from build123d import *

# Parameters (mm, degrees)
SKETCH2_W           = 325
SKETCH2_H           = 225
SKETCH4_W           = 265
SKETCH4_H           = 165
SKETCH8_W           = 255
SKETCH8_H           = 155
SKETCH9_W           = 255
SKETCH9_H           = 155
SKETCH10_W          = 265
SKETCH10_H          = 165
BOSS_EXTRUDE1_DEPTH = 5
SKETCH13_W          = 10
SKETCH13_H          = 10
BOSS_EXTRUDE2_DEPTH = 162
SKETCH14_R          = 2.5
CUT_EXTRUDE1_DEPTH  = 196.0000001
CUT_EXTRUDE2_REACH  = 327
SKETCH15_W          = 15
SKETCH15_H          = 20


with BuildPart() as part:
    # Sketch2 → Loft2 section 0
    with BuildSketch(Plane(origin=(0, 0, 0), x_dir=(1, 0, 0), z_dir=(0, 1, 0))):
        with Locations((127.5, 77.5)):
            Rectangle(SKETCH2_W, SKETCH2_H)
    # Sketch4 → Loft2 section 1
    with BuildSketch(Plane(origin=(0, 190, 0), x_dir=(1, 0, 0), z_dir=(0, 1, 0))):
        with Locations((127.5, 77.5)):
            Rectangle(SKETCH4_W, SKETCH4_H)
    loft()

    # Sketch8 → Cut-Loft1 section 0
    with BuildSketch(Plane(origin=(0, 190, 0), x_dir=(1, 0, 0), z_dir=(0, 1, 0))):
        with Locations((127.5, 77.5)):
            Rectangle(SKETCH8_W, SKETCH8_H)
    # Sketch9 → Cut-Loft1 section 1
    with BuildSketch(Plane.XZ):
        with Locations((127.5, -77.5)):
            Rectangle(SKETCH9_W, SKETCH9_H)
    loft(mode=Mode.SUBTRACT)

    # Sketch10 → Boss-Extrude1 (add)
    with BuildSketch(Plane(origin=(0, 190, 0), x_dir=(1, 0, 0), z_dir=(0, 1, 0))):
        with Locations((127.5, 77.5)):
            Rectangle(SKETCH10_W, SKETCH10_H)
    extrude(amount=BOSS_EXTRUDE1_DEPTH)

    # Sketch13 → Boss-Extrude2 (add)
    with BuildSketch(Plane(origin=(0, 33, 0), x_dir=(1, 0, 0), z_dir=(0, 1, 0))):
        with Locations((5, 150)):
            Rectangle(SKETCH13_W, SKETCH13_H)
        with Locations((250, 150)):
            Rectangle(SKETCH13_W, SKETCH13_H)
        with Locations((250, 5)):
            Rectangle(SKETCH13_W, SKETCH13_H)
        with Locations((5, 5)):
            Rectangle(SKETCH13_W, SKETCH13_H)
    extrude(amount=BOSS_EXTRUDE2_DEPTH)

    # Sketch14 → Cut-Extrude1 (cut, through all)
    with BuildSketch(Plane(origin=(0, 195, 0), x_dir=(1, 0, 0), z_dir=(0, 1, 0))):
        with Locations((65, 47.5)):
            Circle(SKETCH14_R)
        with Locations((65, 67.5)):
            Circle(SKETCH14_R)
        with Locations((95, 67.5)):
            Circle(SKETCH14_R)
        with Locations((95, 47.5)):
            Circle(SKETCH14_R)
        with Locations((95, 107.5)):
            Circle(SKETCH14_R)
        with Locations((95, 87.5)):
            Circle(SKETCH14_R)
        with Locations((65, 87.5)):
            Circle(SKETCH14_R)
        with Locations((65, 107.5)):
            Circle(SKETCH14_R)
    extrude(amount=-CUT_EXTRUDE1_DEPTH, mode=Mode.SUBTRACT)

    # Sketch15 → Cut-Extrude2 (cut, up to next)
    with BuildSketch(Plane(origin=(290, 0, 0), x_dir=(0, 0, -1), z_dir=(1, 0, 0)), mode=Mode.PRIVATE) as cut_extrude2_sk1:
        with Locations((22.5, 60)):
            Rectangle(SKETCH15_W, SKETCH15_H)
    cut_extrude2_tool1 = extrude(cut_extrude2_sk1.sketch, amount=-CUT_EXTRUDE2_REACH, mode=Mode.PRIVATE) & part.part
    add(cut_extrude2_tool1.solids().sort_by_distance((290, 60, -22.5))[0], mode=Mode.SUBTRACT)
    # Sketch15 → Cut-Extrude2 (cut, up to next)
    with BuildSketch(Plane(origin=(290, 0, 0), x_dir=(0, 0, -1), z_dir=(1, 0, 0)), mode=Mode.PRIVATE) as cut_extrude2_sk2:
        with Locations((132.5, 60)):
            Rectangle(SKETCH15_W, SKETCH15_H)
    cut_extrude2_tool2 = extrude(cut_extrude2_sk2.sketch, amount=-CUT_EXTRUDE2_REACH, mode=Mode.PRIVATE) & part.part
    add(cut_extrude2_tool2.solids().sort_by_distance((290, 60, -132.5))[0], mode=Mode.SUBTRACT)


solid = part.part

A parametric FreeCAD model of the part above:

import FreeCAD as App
import Part
import Sketcher

doc = App.newDocument("Part")
params = doc.addObject("Spreadsheet::Sheet", "Params")
for row, (alias, value) in enumerate([
    ("sketch1_width", "325 mm"),
    ("sketch1_height", "225 mm"),
    ("sketch2_width", "265 mm"),
    ("sketch2_height", "165 mm"),
    ("sketch3_width", "255 mm"),
    ("sketch3_height", "155 mm"),
    ("sketch4_width", "255 mm"),
    ("sketch4_height", "155 mm"),
    ("sketch5_width", "265 mm"),
    ("sketch5_height", "165 mm"),
    ("pad1_length", "5 mm"),
    ("sketch6_width", "10 mm"),
    ("pad2_length", "162 mm"),
    ("sketch7_diameter", "5 mm"),
    ("sketch8_width", "20 mm"),
    ("sketch8_height", "15 mm"),
    ("pocket2_length", "35 mm"),
    ("sketch9_width", "20 mm"),
    ("sketch9_height", "15 mm"),
    ("pocket3_length", "35 mm"),
], start=1):
    params.set(f"A{row}", alias)
    params.set(f"B{row}", "=" + value)
    params.setAlias(f"B{row}", alias)

body = doc.addObject("PartDesign::Body", "Body")

# Sketch on XZ plane
sketch1 = body.newObject("Sketcher::SketchObject", "Sketch")
sketch1.AttachmentSupport = (doc.getObject("XZ_Plane"), [""])
sketch1.MapMode = "FlatFace"
sketch1.addGeometry([
    Part.LineSegment(App.Vector(-35, -190, 0), App.Vector(-35, 35, 0)),
    Part.LineSegment(App.Vector(-35, 35, 0), App.Vector(290, 35, 0)),
    Part.LineSegment(App.Vector(290, 35, 0), App.Vector(290, -190, 0)),
    Part.LineSegment(App.Vector(290, -190, 0), App.Vector(-35, -190, 0)),
], False)
sketch1.addConstraint([
    Sketcher.Constraint("Coincident", 0, 2, 1, 1),
    Sketcher.Constraint("Coincident", 1, 2, 2, 1),
    Sketcher.Constraint("Coincident", 2, 2, 3, 1),
    Sketcher.Constraint("Coincident", 3, 2, 0, 1),
    Sketcher.Constraint("Vertical", 0),
    Sketcher.Constraint("Horizontal", 1),
    Sketcher.Constraint("Vertical", 2),
    Sketcher.Constraint("Horizontal", 3),
    Sketcher.Constraint("DistanceX", 1, 1, 1, 2, 325.0),
    Sketcher.Constraint("DistanceY", 0, 1, 0, 2, 225.0),
    Sketcher.Constraint("DistanceX", 0, 2, -1, 1, 35.0),
    Sketcher.Constraint("DistanceY", -1, 1, 0, 2, 35.0),
])
sketch1.setExpression("Constraints[8]", "Params.sketch1_width")
sketch1.setExpression("Constraints[9]", "Params.sketch1_height")

# Sketch on XZ plane
sketch2 = body.newObject("Sketcher::SketchObject", "Sketch001")
sketch2.AttachmentSupport = (doc.getObject("XZ_Plane"), [""])
sketch2.MapMode = "FlatFace"
sketch2.AttachmentOffset = App.Placement(App.Vector(0, 0, -190), App.Rotation())
sketch2.addGeometry([
    Part.LineSegment(App.Vector(-5, -160, 0), App.Vector(-5, 5, 0)),
    Part.LineSegment(App.Vector(-5, 5, 0), App.Vector(260, 5, 0)),
    Part.LineSegment(App.Vector(260, 5, 0), App.Vector(260, -160, 0)),
    Part.LineSegment(App.Vector(260, -160, 0), App.Vector(-5, -160, 0)),
], False)
sketch2.addConstraint([
    Sketcher.Constraint("Coincident", 0, 2, 1, 1),
    Sketcher.Constraint("Coincident", 1, 2, 2, 1),
    Sketcher.Constraint("Coincident", 2, 2, 3, 1),
    Sketcher.Constraint("Coincident", 3, 2, 0, 1),
    Sketcher.Constraint("Vertical", 0),
    Sketcher.Constraint("Horizontal", 1),
    Sketcher.Constraint("Vertical", 2),
    Sketcher.Constraint("Horizontal", 3),
    Sketcher.Constraint("DistanceX", 1, 1, 1, 2, 265.0),
    Sketcher.Constraint("DistanceY", 0, 1, 0, 2, 165.0),
    Sketcher.Constraint("DistanceX", 0, 2, -1, 1, 5.0),
    Sketcher.Constraint("DistanceY", -1, 1, 0, 2, 5.0),
])
sketch2.setExpression("Constraints[8]", "Params.sketch2_width")
sketch2.setExpression("Constraints[9]", "Params.sketch2_height")

additiveloft = body.newObject("PartDesign::AdditiveLoft", "AdditiveLoft")
additiveloft.Profile = sketch1
additiveloft.Sections = [sketch2]

# Sketch on XZ plane
sketch3 = body.newObject("Sketcher::SketchObject", "Sketch002")
sketch3.AttachmentSupport = (doc.getObject("XZ_Plane"), [""])
sketch3.MapMode = "FlatFace"
sketch3.AttachmentOffset = App.Placement(App.Vector(0, 0, -190), App.Rotation())
sketch3.addGeometry([
    Part.LineSegment(App.Vector(0, -155, 0), App.Vector(0, 0, 0)),
    Part.LineSegment(App.Vector(0, 0, 0), App.Vector(255, 0, 0)),
    Part.LineSegment(App.Vector(255, 0, 0), App.Vector(255, -155, 0)),
    Part.LineSegment(App.Vector(255, -155, 0), App.Vector(0, -155, 0)),
], False)
sketch3.addConstraint([
    Sketcher.Constraint("Coincident", 0, 2, 1, 1),
    Sketcher.Constraint("Coincident", 1, 2, 2, 1),
    Sketcher.Constraint("Coincident", 2, 2, 3, 1),
    Sketcher.Constraint("Coincident", 3, 2, 0, 1),
    Sketcher.Constraint("Vertical", 0),
    Sketcher.Constraint("Horizontal", 1),
    Sketcher.Constraint("Vertical", 2),
    Sketcher.Constraint("Horizontal", 3),
    Sketcher.Constraint("Coincident", 0, 2, -1, 1),
    Sketcher.Constraint("DistanceX", 1, 1, 1, 2, 255.0),
    Sketcher.Constraint("DistanceY", 0, 1, 0, 2, 155.0),
])
sketch3.setExpression("Constraints[9]", "Params.sketch3_width")
sketch3.setExpression("Constraints[10]", "Params.sketch3_height")

# Sketch on XZ plane
sketch4 = body.newObject("Sketcher::SketchObject", "Sketch003")
sketch4.AttachmentSupport = (doc.getObject("XZ_Plane"), [""])
sketch4.MapMode = "FlatFace"
sketch4.addGeometry([
    Part.LineSegment(App.Vector(0, 0, 0), App.Vector(0, -155, 0)),
    Part.LineSegment(App.Vector(0, -155, 0), App.Vector(255, -155, 0)),
    Part.LineSegment(App.Vector(255, -155, 0), App.Vector(255, 0, 0)),
    Part.LineSegment(App.Vector(255, 0, 0), App.Vector(0, 0, 0)),
], False)
sketch4.addConstraint([
    Sketcher.Constraint("Coincident", 0, 2, 1, 1),
    Sketcher.Constraint("Coincident", 1, 2, 2, 1),
    Sketcher.Constraint("Coincident", 2, 2, 3, 1),
    Sketcher.Constraint("Coincident", 3, 2, 0, 1),
    Sketcher.Constraint("Vertical", 0),
    Sketcher.Constraint("Horizontal", 1),
    Sketcher.Constraint("Vertical", 2),
    Sketcher.Constraint("Horizontal", 3),
    Sketcher.Constraint("Coincident", 3, 2, -1, 1),
    Sketcher.Constraint("DistanceX", 1, 1, 1, 2, 255.0),
    Sketcher.Constraint("DistanceY", 0, 2, 0, 1, 155.0),
])
sketch4.setExpression("Constraints[9]", "Params.sketch4_width")
sketch4.setExpression("Constraints[10]", "Params.sketch4_height")

subtractiveloft = body.newObject("PartDesign::SubtractiveLoft", "SubtractiveLoft")
subtractiveloft.Profile = sketch3
subtractiveloft.Sections = [sketch4]

# Sketch on XZ plane
sketch5 = body.newObject("Sketcher::SketchObject", "Sketch004")
sketch5.AttachmentSupport = (doc.getObject("XZ_Plane"), [""])
sketch5.MapMode = "FlatFace"
sketch5.AttachmentOffset = App.Placement(App.Vector(0, 0, -190), App.Rotation())
sketch5.addGeometry([
    Part.LineSegment(App.Vector(-5, -160, 0), App.Vector(-5, 5, 0)),
    Part.LineSegment(App.Vector(-5, 5, 0), App.Vector(260, 5, 0)),
    Part.LineSegment(App.Vector(260, 5, 0), App.Vector(260, -160, 0)),
    Part.LineSegment(App.Vector(260, -160, 0), App.Vector(-5, -160, 0)),
], False)
sketch5.addConstraint([
    Sketcher.Constraint("Coincident", 0, 2, 1, 1),
    Sketcher.Constraint("Coincident", 1, 2, 2, 1),
    Sketcher.Constraint("Coincident", 2, 2, 3, 1),
    Sketcher.Constraint("Coincident", 3, 2, 0, 1),
    Sketcher.Constraint("Vertical", 0),
    Sketcher.Constraint("Horizontal", 1),
    Sketcher.Constraint("Vertical", 2),
    Sketcher.Constraint("Horizontal", 3),
    Sketcher.Constraint("DistanceX", 1, 1, 1, 2, 265.0),
    Sketcher.Constraint("DistanceY", 0, 1, 0, 2, 165.0),
    Sketcher.Constraint("DistanceX", 0, 2, -1, 1, 5.0),
    Sketcher.Constraint("DistanceY", -1, 1, 0, 2, 5.0),
])
sketch5.setExpression("Constraints[8]", "Params.sketch5_width")
sketch5.setExpression("Constraints[9]", "Params.sketch5_height")
pad1 = body.newObject("PartDesign::Pad", "Pad")
pad1.Profile = sketch5
pad1.setExpression("Length", "Params.pad1_length")
pad1.Reversed = True

# Sketch on XZ plane
sketch6 = body.newObject("Sketcher::SketchObject", "Sketch005")
sketch6.AttachmentSupport = (doc.getObject("XZ_Plane"), [""])
sketch6.MapMode = "FlatFace"
sketch6.AttachmentOffset = App.Placement(App.Vector(0, 0, -33), App.Rotation())
sketch6.addGeometry([
    Part.LineSegment(App.Vector(0, -155, 0), App.Vector(0, -145, 0)),  # 0
    Part.LineSegment(App.Vector(0, -145, 0), App.Vector(10, -145, 0)),  # 1
    Part.LineSegment(App.Vector(10, -145, 0), App.Vector(10, -155, 0)),  # 2
    Part.LineSegment(App.Vector(10, -155, 0), App.Vector(0, -155, 0)),  # 3
    Part.LineSegment(App.Vector(245, -155, 0), App.Vector(245, -145, 0)),  # 4
    Part.LineSegment(App.Vector(245, -145, 0), App.Vector(255, -145, 0)),  # 5
    Part.LineSegment(App.Vector(255, -145, 0), App.Vector(255, -155, 0)),  # 6
    Part.LineSegment(App.Vector(255, -155, 0), App.Vector(245, -155, 0)),  # 7
    Part.LineSegment(App.Vector(245, -10, 0), App.Vector(245, 0, 0)),  # 8
    Part.LineSegment(App.Vector(245, 0, 0), App.Vector(255, 0, 0)),  # 9
    Part.LineSegment(App.Vector(255, 0, 0), App.Vector(255, -10, 0)),  # 10
    Part.LineSegment(App.Vector(255, -10, 0), App.Vector(245, -10, 0)),  # 11
    Part.LineSegment(App.Vector(0, -10, 0), App.Vector(0, 0, 0)),  # 12
    Part.LineSegment(App.Vector(0, 0, 0), App.Vector(10, 0, 0)),  # 13
    Part.LineSegment(App.Vector(10, 0, 0), App.Vector(10, -10, 0)),  # 14
    Part.LineSegment(App.Vector(10, -10, 0), App.Vector(0, -10, 0)),  # 15
], False)
sketch6.addConstraint([
    Sketcher.Constraint("Coincident", 0, 2, 1, 1),
    Sketcher.Constraint("Coincident", 1, 2, 2, 1),
    Sketcher.Constraint("Coincident", 2, 2, 3, 1),
    Sketcher.Constraint("Coincident", 3, 2, 0, 1),
    Sketcher.Constraint("Coincident", 4, 2, 5, 1),
    Sketcher.Constraint("Coincident", 5, 2, 6, 1),
    Sketcher.Constraint("Coincident", 6, 2, 7, 1),
    Sketcher.Constraint("Coincident", 7, 2, 4, 1),
    Sketcher.Constraint("Coincident", 8, 2, 9, 1),
    Sketcher.Constraint("Coincident", 9, 2, 10, 1),
    Sketcher.Constraint("Coincident", 10, 2, 11, 1),
    Sketcher.Constraint("Coincident", 11, 2, 8, 1),
    Sketcher.Constraint("Coincident", 12, 2, 13, 1),
    Sketcher.Constraint("Coincident", 13, 2, 14, 1),
    Sketcher.Constraint("Coincident", 14, 2, 15, 1),
    Sketcher.Constraint("Coincident", 15, 2, 12, 1),
    Sketcher.Constraint("Vertical", 0),
    Sketcher.Constraint("Horizontal", 1),
    Sketcher.Constraint("Vertical", 2),
    Sketcher.Constraint("Horizontal", 3),
    Sketcher.Constraint("Vertical", 4),
    Sketcher.Constraint("Horizontal", 5),
    Sketcher.Constraint("Vertical", 6),
    Sketcher.Constraint("Horizontal", 7),
    Sketcher.Constraint("Vertical", 8),
    Sketcher.Constraint("Horizontal", 9),
    Sketcher.Constraint("Vertical", 10),
    Sketcher.Constraint("Horizontal", 11),
    Sketcher.Constraint("Vertical", 12),
    Sketcher.Constraint("Horizontal", 13),
    Sketcher.Constraint("Vertical", 14),
    Sketcher.Constraint("Horizontal", 15),
    Sketcher.Constraint("Coincident", 12, 2, -1, 1),
    Sketcher.Constraint("PointOnObject", 0, 2, -2),
    Sketcher.Constraint("PointOnObject", 8, 2, -1),
    Sketcher.Constraint("Horizontal", 1, 2, 4, 2),
    Sketcher.Constraint("Horizontal", 3, 2, 6, 2),
    Sketcher.Constraint("Horizontal", 11, 2, 14, 2),
    Sketcher.Constraint("Vertical", 7, 2, 8, 2),
    Sketcher.Constraint("Vertical", 6, 2, 9, 2),
    Sketcher.Constraint("Vertical", 2, 2, 13, 2),
    Sketcher.Constraint("Equal", 3, 5),
    Sketcher.Constraint("Equal", 15, 0),
    Sketcher.Constraint("Equal", 6, 8),
    Sketcher.Constraint("DistanceX", 1, 1, 1, 2, 10.0),
    Sketcher.Constraint("DistanceY", 0, 2, -1, 1, 145.0),
    Sketcher.Constraint("DistanceX", -1, 1, 4, 2, 245.0),
])
sketch6.setExpression("Constraints[44]", "Params.sketch6_width")
pad2 = body.newObject("PartDesign::Pad", "Pad001")
pad2.Profile = sketch6
pad2.setExpression("Length", "Params.pad2_length")
pad2.Reversed = True

# Sketch on XZ plane
sketch7 = body.newObject("Sketcher::SketchObject", "Sketch006")
sketch7.AttachmentSupport = (doc.getObject("XZ_Plane"), [""])
sketch7.MapMode = "FlatFace"
sketch7.AttachmentOffset = App.Placement(App.Vector(0, 0, -195), App.Rotation())
sketch7.addGeometry([
    Part.Circle(App.Vector(65, -47.5, 0), App.Vector(0, 0, 1), 2.5),  # 0
    Part.Circle(App.Vector(65, -67.5, 0), App.Vector(0, 0, 1), 2.5),  # 1
    Part.Circle(App.Vector(95, -67.5, 0), App.Vector(0, 0, 1), 2.5),  # 2
    Part.Circle(App.Vector(95, -47.5, 0), App.Vector(0, 0, 1), 2.5),  # 3
    Part.Circle(App.Vector(95, -107.5, 0), App.Vector(0, 0, 1), 2.5),  # 4
    Part.Circle(App.Vector(95, -87.5, 0), App.Vector(0, 0, 1), 2.5),  # 5
    Part.Circle(App.Vector(65, -87.5, 0), App.Vector(0, 0, 1), 2.5),  # 6
    Part.Circle(App.Vector(65, -107.5, 0), App.Vector(0, 0, 1), 2.5),  # 7
], False)
sketch7.addConstraint([
    Sketcher.Constraint("Equal", 0, 1),
    Sketcher.Constraint("Equal", 1, 2),
    Sketcher.Constraint("Equal", 2, 3),
    Sketcher.Constraint("Equal", 3, 4),
    Sketcher.Constraint("Equal", 4, 5),
    Sketcher.Constraint("Equal", 5, 6),
    Sketcher.Constraint("Equal", 6, 7),
    Sketcher.Constraint("Horizontal", 1, 3, 2, 3),
    Sketcher.Constraint("Horizontal", 0, 3, 3, 3),
    Sketcher.Constraint("Horizontal", 5, 3, 6, 3),
    Sketcher.Constraint("Horizontal", 4, 3, 7, 3),
    Sketcher.Constraint("Vertical", 0, 3, 1, 3),
    Sketcher.Constraint("Vertical", 2, 3, 3, 3),
    Sketcher.Constraint("Vertical", 3, 3, 4, 3),
    Sketcher.Constraint("Vertical", 4, 3, 5, 3),
    Sketcher.Constraint("Vertical", 1, 3, 6, 3),
    Sketcher.Constraint("Vertical", 6, 3, 7, 3),
    Sketcher.Constraint("Diameter", 0, 5.0),
    Sketcher.Constraint("DistanceX", -1, 1, 0, 3, 65.0),
    Sketcher.Constraint("DistanceX", -1, 1, 2, 3, 95.0),
    Sketcher.Constraint("DistanceY", 1, 3, 0, 3, 20.0),
    Sketcher.Constraint("DistanceY", 4, 3, 2, 3, 40.0),
    Sketcher.Constraint("DistanceY", 5, 3, 2, 3, 20.0),
    Sketcher.Constraint("DistanceY", 0, 3, -1, 1, 47.5),
])
sketch7.setExpression("Constraints[17]", "Params.sketch7_diameter")
pocket1 = body.newObject("PartDesign::Pocket", "Pocket")
pocket1.Profile = sketch7
pocket1.Type = "ThroughAll"
pocket1.Reversed = True

# Sketch on YZ plane
sketch8 = body.newObject("Sketcher::SketchObject", "Sketch007")
sketch8.AttachmentSupport = (doc.getObject("YZ_Plane"), [""])
sketch8.MapMode = "FlatFace"
sketch8.AttachmentOffset = App.Placement(App.Vector(0, 0, 290), App.Rotation())
sketch8.addGeometry([
    Part.LineSegment(App.Vector(70, -15, 0), App.Vector(50, -15, 0)),
    Part.LineSegment(App.Vector(50, -15, 0), App.Vector(50, -30, 0)),
    Part.LineSegment(App.Vector(50, -30, 0), App.Vector(70, -30, 0)),
    Part.LineSegment(App.Vector(70, -30, 0), App.Vector(70, -15, 0)),
], False)
sketch8.addConstraint([
    Sketcher.Constraint("Coincident", 0, 2, 1, 1),
    Sketcher.Constraint("Coincident", 1, 2, 2, 1),
    Sketcher.Constraint("Coincident", 2, 2, 3, 1),
    Sketcher.Constraint("Coincident", 3, 2, 0, 1),
    Sketcher.Constraint("Horizontal", 0),
    Sketcher.Constraint("Vertical", 1),
    Sketcher.Constraint("Horizontal", 2),
    Sketcher.Constraint("Vertical", 3),
    Sketcher.Constraint("DistanceX", 0, 2, 0, 1, 20.0),
    Sketcher.Constraint("DistanceY", 1, 2, 1, 1, 15.0),
    Sketcher.Constraint("DistanceX", -1, 1, 0, 2, 50.0),
    Sketcher.Constraint("DistanceY", 0, 2, -1, 1, 15.0),
])
sketch8.setExpression("Constraints[8]", "Params.sketch8_width")
sketch8.setExpression("Constraints[9]", "Params.sketch8_height")
pocket2 = body.newObject("PartDesign::Pocket", "Pocket001")
pocket2.Profile = sketch8
pocket2.setExpression("Length", "Params.pocket2_length")

# Sketch on YZ plane
sketch9 = body.newObject("Sketcher::SketchObject", "Sketch008")
sketch9.AttachmentSupport = (doc.getObject("YZ_Plane"), [""])
sketch9.MapMode = "FlatFace"
sketch9.AttachmentOffset = App.Placement(App.Vector(0, 0, 290), App.Rotation())
sketch9.addGeometry([
    Part.LineSegment(App.Vector(70, -125, 0), App.Vector(50, -125, 0)),
    Part.LineSegment(App.Vector(50, -125, 0), App.Vector(50, -140, 0)),
    Part.LineSegment(App.Vector(50, -140, 0), App.Vector(70, -140, 0)),
    Part.LineSegment(App.Vector(70, -140, 0), App.Vector(70, -125, 0)),
], False)
sketch9.addConstraint([
    Sketcher.Constraint("Coincident", 0, 2, 1, 1),
    Sketcher.Constraint("Coincident", 1, 2, 2, 1),
    Sketcher.Constraint("Coincident", 2, 2, 3, 1),
    Sketcher.Constraint("Coincident", 3, 2, 0, 1),
    Sketcher.Constraint("Horizontal", 0),
    Sketcher.Constraint("Vertical", 1),
    Sketcher.Constraint("Horizontal", 2),
    Sketcher.Constraint("Vertical", 3),
    Sketcher.Constraint("DistanceX", 0, 2, 0, 1, 20.0),
    Sketcher.Constraint("DistanceY", 1, 2, 1, 1, 15.0),
    Sketcher.Constraint("DistanceX", -1, 1, 0, 2, 50.0),
    Sketcher.Constraint("DistanceY", 0, 2, -1, 1, 125.0),
])
sketch9.setExpression("Constraints[8]", "Params.sketch9_width")
sketch9.setExpression("Constraints[9]", "Params.sketch9_height")
pocket3 = body.newObject("PartDesign::Pocket", "Pocket002")
pocket3.Profile = sketch9
pocket3.setExpression("Length", "Params.pocket3_length")

doc.recompute()
